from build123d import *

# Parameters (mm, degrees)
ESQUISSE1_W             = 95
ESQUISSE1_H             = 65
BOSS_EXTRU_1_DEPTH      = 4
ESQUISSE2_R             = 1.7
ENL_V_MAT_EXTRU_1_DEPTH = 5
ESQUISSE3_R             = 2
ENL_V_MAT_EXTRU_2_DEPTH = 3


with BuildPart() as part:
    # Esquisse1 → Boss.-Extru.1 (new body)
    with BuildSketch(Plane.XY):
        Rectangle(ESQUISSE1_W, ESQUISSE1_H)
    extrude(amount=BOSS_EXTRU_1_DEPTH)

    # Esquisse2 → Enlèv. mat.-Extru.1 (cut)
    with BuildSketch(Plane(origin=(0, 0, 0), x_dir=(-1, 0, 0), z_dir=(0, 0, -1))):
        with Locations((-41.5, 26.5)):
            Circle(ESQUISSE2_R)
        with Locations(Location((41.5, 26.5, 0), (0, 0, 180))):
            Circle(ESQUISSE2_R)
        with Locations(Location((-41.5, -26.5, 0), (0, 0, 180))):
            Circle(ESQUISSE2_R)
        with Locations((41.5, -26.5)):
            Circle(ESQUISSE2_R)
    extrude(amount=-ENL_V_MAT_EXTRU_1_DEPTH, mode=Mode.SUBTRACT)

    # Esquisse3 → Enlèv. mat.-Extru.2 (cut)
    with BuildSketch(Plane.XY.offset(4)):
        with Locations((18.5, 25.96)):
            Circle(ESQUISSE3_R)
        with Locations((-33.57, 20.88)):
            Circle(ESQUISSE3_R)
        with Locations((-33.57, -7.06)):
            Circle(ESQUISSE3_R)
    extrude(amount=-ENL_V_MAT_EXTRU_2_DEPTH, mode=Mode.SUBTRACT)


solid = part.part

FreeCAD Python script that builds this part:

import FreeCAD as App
import Part
import Sketcher


def add_polygon(sketch, points):
    """Adds a closed chain of lines whose ends are joined by coincident constraints."""
    first, n = sketch.GeometryCount, len(points)
    for a, b in zip(points, points[1:] + points[:1]):
        sketch.addGeometry(Part.LineSegment(App.Vector(*a, 0), App.Vector(*b, 0)), False)
    for i in range(n):
        sketch.addConstraint(Sketcher.Constraint("Coincident", first + i, 2, first + (i + 1) % n, 1))

doc = App.newDocument("Part")
body = doc.addObject("PartDesign::Body", "Body")

# Sketch on XY plane
sketch1 = doc.addObject("Sketcher::SketchObject", "Sketch")
body.addObject(sketch1)
sketch1.AttachmentSupport = (doc.XY_Plane, [""])
sketch1.MapMode = "FlatFace"
add_polygon(sketch1, [(-48, 32), (-48, -32), (48, -32), (48, 32)])  # lines 0-3
sketch1.addConstraint([
    Sketcher.Constraint("Vertical", 0),
    Sketcher.Constraint("Horizontal", 1),
    Sketcher.Constraint("Vertical", 2),
    Sketcher.Constraint("Horizontal", 3),
    Sketcher.Constraint("Symmetric", 0, 2, 2, 2, -1, 1),
    Sketcher.Constraint("DistanceX", 1, 1, 1, 2, 95.0),
    Sketcher.Constraint("DistanceY", 0, 2, 0, 1, 65.0),
])
pad1 = doc.addObject("PartDesign::Pad", "Pad")
body.addObject(pad1)
pad1.Profile = sketch1
pad1.Length = 4

# Sketch on XY plane
sketch2 = doc.addObject("Sketcher::SketchObject", "Sketch001")
body.addObject(sketch2)
sketch2.AttachmentSupport = (doc.XY_Plane, [""])
sketch2.MapMode = "FlatFace"
sketch2.addGeometry([
    Part.Circle(App.Vector(41.5, 26.5, 0), App.Vector(0, 0, 1), 1.7),
    Part.Circle(App.Vector(-41.5, 26.5, 0), App.Vector(0, 0, 1), 1.7),
    Part.Circle(App.Vector(41.5, -26.5, 0), App.Vector(0, 0, 1), 1.7),
    Part.Circle(App.Vector(-41.5, -26.5, 0), App.Vector(0, 0, 1), 1.7),
], False)
sketch2.addConstraint([
    Sketcher.Constraint("Equal", 0, 1),
    Sketcher.Constraint("Equal", 1, 2),
    Sketcher.Constraint("Equal", 2, 3),
    Sketcher.Constraint("Symmetric", 1, 3, 2, 3, -1, 1),
    Sketcher.Constraint("Symmetric", 0, 3, 3, 3, -1, 1),
    Sketcher.Constraint("Symmetric", 0, 3, 1, 3, -2),
    Sketcher.Constraint("Diameter", 0, 3.4),
    Sketcher.Constraint("DistanceX", 1, 3, 0, 3, 83.0),
    Sketcher.Constraint("DistanceY", 2, 3, 0, 3, 53.0),
])
pocket1 = doc.addObject("PartDesign::Pocket", "Pocket")
body.addObject(pocket1)
pocket1.Profile = sketch2
pocket1.Length = 5
pocket1.Reversed = True

# Sketch on XY plane
sketch3 = doc.addObject("Sketcher::SketchObject", "Sketch002")
body.addObject(sketch3)
sketch3.AttachmentSupport = (doc.XY_Plane, [""])
sketch3.MapMode = "FlatFace"
sketch3.AttachmentOffset = App.Placement(App.Vector(0, 0, 4), App.Rotation())
sketch3.addGeometry([
    Part.Circle(App.Vector(18.5, 26, 0), App.Vector(0, 0, 1), 2),
    Part.Circle(App.Vector(-33.6, 20.9, 0), App.Vector(0, 0, 1), 2),
    Part.Circle(App.Vector(-33.6, -7.1, 0), App.Vector(0, 0, 1), 2),
], False)
sketch3.addConstraint([
    Sketcher.Constraint("Equal", 0, 1),
    Sketcher.Constraint("Equal", 1, 2),
    Sketcher.Constraint("Vertical", 1, 3, 2, 3),
    Sketcher.Constraint("Diameter", 0, 4.0),
    Sketcher.Constraint("DistanceX", -1, 1, 0, 3, 18.5),
    Sketcher.Constraint("DistanceY", -1, 1, 0, 3, 25.96),
    Sketcher.Constraint("DistanceX", 1, 3, -1, 1, 33.57),
    Sketcher.Constraint("DistanceY", -1, 1, 1, 3, 20.88),
    Sketcher.Constraint("DistanceY", 2, 3, -1, 1, 7.06),
])
pocket2 = doc.addObject("PartDesign::Pocket", "Pocket001")
body.addObject(pocket2)
pocket2.Profile = sketch3
pocket2.Length = 3

doc.recompute()
